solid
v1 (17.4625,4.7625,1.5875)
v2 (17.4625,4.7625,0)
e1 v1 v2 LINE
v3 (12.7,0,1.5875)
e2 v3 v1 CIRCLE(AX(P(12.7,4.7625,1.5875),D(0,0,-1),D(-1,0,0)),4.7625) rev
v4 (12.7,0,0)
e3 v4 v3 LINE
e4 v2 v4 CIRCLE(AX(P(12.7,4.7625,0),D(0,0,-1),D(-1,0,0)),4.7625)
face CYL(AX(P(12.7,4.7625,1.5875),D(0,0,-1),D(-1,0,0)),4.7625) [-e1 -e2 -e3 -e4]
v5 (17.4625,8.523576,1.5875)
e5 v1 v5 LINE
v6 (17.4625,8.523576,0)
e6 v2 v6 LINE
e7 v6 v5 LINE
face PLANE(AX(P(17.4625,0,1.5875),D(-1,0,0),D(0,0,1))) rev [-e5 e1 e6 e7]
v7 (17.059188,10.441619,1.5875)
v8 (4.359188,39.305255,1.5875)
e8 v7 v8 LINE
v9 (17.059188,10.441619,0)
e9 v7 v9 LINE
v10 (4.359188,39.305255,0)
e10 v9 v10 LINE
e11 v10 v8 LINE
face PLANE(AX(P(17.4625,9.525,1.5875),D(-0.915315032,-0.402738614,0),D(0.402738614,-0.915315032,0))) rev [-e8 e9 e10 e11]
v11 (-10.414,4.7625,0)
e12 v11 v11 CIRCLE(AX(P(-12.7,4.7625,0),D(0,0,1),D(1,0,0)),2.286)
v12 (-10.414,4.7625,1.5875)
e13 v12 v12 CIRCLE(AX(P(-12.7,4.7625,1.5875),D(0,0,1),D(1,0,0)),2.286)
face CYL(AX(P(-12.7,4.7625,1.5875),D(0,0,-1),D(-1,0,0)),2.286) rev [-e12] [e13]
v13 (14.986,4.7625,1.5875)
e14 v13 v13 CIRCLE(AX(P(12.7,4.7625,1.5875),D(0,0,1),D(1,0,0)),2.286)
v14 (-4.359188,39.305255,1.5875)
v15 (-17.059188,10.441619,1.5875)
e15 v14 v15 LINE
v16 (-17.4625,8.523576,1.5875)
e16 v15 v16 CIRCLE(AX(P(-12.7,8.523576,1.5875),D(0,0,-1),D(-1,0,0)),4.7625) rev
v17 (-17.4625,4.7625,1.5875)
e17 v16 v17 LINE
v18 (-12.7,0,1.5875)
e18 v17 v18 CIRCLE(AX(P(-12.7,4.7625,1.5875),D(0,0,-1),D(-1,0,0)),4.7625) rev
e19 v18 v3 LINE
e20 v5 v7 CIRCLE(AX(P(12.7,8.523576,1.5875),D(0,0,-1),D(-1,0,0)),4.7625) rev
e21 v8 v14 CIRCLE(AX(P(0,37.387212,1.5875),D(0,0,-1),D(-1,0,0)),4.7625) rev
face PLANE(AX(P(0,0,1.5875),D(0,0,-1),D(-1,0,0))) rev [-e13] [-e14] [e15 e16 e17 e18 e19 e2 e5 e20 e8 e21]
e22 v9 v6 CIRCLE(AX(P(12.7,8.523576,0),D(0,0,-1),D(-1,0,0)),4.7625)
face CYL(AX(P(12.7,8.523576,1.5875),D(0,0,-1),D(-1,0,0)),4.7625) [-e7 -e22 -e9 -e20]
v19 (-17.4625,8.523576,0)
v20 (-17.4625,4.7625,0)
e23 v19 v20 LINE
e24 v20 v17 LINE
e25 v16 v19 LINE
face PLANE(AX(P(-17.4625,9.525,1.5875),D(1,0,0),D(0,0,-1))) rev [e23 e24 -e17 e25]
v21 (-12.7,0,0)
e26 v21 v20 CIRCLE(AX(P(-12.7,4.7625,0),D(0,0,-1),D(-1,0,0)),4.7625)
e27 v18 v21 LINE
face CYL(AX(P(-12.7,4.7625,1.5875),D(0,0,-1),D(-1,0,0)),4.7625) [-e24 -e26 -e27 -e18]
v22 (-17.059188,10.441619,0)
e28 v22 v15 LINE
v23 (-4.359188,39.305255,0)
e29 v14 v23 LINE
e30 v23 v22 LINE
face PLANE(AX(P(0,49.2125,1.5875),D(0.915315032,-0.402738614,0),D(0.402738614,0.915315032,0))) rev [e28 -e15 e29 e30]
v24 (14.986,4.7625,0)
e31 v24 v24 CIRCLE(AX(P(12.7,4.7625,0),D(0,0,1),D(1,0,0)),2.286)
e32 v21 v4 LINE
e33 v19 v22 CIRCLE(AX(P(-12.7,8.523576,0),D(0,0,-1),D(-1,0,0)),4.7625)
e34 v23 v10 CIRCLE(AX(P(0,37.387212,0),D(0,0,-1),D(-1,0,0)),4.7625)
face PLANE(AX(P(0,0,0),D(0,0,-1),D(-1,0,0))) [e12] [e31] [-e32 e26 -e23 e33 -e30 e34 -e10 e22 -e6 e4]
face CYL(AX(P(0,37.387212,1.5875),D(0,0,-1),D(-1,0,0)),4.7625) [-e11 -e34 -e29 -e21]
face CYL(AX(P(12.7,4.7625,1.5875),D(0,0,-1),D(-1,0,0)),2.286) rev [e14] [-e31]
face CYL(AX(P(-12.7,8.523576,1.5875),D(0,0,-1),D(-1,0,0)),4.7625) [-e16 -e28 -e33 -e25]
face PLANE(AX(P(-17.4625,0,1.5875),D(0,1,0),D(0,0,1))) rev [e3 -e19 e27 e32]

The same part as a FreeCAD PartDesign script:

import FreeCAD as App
import Part
import Sketcher
Q = App.Units.Quantity


def edges_at(feature, points):
    """Names of the edges that pass closest to the given points."""
    edges = feature.Shape.Edges
    near = lambda p: min(range(len(edges)), key=lambda i: edges[i].distToShape(Part.Vertex(*p))[0])
    return sorted({f"Edge{near(p) + 1}" for p in points})


def add_polygon(sketch, points):
    """Adds a closed chain of lines whose ends are joined by coincident constraints."""
    first, n = sketch.GeometryCount, len(points)
    for a, b in zip(points, points[1:] + points[:1]):
        sketch.addGeometry(Part.LineSegment(App.Vector(*a, 0), App.Vector(*b, 0)), False)
    for i in range(n):
        sketch.addConstraint(Sketcher.Constraint("Coincident", first + i, 2, first + (i + 1) % n, 1))

doc = App.newDocument("Part")
body = doc.addObject("PartDesign::Body", "Body")

# Sketch on XY plane
sketch1 = body.newObject("Sketcher::SketchObject", "Sketch")
sketch1.AttachmentSupport = (doc.getObject("XY_Plane"), [""])
sketch1.MapMode = "FlatFace"
add_polygon(sketch1, [(-17.5, 0), (17.5, 0), (17.5, 9.5), (0, 49.2), (-17.5, 9.5)])  # lines 0-4
sketch1.addGeometry(Part.Circle(App.Vector(-12.7, 4.8, 0), App.Vector(0, 0, 1), 2.3), False)  # 5
sketch1.addGeometry(Part.Circle(App.Vector(12.7, 4.8, 0), App.Vector(0, 0, 1), 2.3), False)  # 6
sketch1.addConstraint(Sketcher.Constraint("Horizontal", 0))
sketch1.addConstraint(Sketcher.Constraint("Vertical", 1))
sketch1.addConstraint(Sketcher.Constraint("Vertical", 4))
sketch1.addConstraint(Sketcher.Constraint("Equal", 5, 6))
sketch1.addConstraint(Sketcher.Constraint("Symmetric", 0, 2, 4, 2, -1, 1))
sketch1.addConstraint(Sketcher.Constraint("Symmetric", 5, 3, 6, 3, -2))
sketch1.addConstraint(Sketcher.Constraint("PointOnObject", 2, 2, -2))
sketch1.addConstraint(Sketcher.Constraint("Horizontal", 1, 2, 3, 2))
sketch1.addConstraint(Sketcher.Constraint("Diameter", 5, Q("0.18 in")))
sketch1.addConstraint(Sketcher.Constraint("DistanceX", 5, 3, 6, 3, Q("1 in")))
sketch1.addConstraint(Sketcher.Constraint("DistanceX", 0, 1, 0, 2, Q("1.375 in")))
sketch1.addConstraint(Sketcher.Constraint("DistanceY", 1, 1, 1, 2, Q("0.375 in")))
sketch1.addConstraint(Sketcher.Constraint("DistanceY", 5, 3, 2, 2, Q("1.75 in")))
sketch1.addConstraint(Sketcher.Constraint("DistanceY", -1, 1, 5, 3, Q("0.1875 in")))
pad1 = body.newObject("PartDesign::Pad", "Pad")
pad1.Profile = sketch1
pad1.Length = Q("0.0625 in")
doc.recompute()

fillet = body.newObject("PartDesign::Fillet", "Fillet")
fillet.Base = (pad1, edges_at(pad1, [
    (17.462, 0, 0.794),
    (-17.462, 0, 0.794),
    (-17.462, 9.525, 0.794),
    (0, 49.212, 0.794),
    (17.462, 9.525, 0.794),
]))
fillet.Radius = Q("0.1875 in")

doc.recompute()
